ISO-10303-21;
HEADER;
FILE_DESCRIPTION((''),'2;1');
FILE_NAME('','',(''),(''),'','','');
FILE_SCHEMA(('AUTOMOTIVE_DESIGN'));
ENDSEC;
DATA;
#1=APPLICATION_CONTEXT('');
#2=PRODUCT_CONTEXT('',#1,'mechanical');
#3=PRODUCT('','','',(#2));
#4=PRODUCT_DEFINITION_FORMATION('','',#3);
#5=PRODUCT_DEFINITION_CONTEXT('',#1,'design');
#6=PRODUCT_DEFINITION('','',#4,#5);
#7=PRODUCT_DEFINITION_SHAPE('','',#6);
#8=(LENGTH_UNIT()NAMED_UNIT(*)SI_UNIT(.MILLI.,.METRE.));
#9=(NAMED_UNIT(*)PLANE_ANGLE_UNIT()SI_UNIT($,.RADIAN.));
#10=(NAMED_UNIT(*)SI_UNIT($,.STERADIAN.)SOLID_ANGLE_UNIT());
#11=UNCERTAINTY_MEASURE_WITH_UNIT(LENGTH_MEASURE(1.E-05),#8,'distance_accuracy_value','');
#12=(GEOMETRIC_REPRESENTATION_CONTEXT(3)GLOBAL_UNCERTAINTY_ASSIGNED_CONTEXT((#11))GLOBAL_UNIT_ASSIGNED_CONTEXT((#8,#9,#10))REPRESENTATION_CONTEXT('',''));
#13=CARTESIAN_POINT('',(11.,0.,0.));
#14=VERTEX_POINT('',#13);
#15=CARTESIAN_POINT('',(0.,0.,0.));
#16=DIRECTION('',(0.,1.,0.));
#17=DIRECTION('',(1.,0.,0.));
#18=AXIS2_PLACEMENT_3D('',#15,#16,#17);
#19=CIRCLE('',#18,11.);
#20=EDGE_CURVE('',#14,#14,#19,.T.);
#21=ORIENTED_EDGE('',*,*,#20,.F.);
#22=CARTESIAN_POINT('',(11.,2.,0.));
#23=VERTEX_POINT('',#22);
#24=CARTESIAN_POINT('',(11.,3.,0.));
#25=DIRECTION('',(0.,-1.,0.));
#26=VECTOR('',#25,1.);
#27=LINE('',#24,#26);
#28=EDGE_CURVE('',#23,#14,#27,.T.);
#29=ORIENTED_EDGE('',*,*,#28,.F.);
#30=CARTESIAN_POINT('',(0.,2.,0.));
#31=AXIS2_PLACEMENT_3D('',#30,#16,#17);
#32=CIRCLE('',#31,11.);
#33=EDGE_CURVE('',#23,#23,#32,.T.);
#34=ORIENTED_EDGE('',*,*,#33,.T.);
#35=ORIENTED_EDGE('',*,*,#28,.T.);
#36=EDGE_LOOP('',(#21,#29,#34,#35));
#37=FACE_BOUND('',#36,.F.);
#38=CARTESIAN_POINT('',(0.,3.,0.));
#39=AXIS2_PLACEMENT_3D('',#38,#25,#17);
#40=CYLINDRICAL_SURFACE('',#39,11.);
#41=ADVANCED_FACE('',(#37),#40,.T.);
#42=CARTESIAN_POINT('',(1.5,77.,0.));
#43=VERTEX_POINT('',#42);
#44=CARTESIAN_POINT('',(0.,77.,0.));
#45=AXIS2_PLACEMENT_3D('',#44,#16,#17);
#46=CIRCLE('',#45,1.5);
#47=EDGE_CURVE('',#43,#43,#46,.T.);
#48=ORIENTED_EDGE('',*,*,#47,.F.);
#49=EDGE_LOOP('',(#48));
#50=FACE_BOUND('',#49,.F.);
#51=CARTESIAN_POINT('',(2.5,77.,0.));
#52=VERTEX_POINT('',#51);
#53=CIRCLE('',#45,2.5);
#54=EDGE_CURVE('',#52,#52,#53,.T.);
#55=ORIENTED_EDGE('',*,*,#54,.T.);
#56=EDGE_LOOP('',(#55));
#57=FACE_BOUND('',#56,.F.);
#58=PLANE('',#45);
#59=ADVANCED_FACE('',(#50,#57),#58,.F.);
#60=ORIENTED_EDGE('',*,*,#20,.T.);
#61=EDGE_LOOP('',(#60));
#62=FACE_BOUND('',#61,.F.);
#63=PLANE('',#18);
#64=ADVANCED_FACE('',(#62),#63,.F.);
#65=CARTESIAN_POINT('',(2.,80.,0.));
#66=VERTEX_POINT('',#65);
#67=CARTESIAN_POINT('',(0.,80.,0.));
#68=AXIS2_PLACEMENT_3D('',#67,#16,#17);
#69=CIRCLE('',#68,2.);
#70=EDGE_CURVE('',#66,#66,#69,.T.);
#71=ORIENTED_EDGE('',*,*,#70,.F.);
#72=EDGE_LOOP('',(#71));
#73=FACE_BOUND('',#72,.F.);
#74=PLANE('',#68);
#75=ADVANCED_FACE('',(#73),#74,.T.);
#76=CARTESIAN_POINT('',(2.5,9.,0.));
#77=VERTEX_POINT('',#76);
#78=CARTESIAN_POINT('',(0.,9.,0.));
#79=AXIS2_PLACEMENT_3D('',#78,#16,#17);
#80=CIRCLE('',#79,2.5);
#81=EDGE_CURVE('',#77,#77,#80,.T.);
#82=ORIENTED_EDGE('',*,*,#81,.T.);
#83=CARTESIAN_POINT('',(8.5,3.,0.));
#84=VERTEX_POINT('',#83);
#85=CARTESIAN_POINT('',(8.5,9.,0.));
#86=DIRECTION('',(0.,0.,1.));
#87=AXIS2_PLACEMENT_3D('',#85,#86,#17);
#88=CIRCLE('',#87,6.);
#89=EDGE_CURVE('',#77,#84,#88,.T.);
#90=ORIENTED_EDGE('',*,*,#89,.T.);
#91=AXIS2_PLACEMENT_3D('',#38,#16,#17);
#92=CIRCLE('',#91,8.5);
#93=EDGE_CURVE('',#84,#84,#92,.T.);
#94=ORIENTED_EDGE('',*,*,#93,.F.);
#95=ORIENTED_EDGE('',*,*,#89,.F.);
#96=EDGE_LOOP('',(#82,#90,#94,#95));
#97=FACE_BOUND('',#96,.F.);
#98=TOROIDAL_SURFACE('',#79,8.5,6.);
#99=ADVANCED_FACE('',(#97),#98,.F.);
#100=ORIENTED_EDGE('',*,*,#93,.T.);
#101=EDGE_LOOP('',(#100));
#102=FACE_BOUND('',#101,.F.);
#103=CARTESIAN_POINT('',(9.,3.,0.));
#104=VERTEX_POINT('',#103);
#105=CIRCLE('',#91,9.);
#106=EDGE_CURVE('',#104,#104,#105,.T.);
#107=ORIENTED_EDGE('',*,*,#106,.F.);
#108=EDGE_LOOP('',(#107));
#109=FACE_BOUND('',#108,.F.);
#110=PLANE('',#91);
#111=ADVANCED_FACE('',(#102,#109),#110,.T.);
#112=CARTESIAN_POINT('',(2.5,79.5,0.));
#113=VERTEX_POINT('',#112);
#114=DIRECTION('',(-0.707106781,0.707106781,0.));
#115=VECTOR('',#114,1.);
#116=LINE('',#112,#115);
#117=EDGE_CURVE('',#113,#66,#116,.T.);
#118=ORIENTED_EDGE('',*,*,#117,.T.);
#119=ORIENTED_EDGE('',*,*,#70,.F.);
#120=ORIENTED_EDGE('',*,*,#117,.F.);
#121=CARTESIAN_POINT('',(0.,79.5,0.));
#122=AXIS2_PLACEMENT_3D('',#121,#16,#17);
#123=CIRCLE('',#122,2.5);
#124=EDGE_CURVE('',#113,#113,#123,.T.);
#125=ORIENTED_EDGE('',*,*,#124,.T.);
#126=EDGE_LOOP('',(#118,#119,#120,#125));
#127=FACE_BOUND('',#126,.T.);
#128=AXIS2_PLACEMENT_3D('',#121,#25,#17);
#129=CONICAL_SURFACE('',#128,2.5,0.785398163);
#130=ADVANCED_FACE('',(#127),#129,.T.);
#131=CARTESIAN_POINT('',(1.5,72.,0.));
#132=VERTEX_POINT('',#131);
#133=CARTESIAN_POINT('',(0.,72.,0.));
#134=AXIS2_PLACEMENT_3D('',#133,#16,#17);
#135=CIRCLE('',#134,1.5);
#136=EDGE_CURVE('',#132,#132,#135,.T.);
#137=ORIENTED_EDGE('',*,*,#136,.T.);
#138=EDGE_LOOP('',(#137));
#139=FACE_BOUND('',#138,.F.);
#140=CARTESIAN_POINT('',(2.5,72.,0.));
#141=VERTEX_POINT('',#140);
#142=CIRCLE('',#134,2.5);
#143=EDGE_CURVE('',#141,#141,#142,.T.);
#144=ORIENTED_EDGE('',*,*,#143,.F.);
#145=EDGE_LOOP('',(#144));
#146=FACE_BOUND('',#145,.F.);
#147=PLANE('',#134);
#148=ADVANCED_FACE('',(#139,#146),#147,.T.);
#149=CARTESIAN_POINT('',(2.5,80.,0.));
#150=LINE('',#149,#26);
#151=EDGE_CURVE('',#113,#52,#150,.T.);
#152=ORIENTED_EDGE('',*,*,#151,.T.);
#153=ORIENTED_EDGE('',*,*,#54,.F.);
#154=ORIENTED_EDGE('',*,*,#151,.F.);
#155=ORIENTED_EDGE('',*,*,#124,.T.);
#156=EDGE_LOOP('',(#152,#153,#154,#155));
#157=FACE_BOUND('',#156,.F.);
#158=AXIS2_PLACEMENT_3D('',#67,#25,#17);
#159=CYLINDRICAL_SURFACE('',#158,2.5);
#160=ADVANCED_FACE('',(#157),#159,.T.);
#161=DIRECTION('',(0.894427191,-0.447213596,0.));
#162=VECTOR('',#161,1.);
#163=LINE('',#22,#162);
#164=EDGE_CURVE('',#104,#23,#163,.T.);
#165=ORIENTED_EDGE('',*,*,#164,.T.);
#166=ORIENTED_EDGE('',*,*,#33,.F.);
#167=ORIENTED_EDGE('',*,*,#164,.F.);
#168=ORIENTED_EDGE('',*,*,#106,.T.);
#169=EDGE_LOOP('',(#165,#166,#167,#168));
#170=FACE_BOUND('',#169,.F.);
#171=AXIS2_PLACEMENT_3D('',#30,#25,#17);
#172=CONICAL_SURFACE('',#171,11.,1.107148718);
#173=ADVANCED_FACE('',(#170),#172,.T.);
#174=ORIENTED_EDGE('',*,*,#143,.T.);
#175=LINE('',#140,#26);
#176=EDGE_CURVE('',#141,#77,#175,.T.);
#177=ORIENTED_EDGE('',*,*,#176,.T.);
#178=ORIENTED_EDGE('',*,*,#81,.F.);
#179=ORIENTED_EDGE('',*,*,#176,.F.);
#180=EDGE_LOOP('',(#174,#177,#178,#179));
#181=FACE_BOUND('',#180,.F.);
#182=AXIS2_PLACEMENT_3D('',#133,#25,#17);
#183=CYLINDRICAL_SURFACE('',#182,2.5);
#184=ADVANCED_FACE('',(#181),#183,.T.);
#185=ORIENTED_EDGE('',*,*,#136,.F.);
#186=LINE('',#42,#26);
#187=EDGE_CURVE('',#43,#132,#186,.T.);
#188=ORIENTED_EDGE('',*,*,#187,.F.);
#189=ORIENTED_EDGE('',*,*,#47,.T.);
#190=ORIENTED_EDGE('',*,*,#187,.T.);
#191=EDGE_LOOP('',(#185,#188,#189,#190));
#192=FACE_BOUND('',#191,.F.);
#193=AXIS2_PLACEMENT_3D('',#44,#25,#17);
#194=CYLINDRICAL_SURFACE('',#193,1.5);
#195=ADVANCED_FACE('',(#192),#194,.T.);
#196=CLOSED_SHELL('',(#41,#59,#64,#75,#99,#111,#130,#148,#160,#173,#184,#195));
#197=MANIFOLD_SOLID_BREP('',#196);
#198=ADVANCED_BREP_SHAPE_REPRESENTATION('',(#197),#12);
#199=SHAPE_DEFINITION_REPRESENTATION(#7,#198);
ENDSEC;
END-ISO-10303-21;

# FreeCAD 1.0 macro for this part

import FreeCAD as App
import Part
import Sketcher
Q = App.Units.Quantity


def edges_at(feature, points):
    """Names of the edges that pass closest to the given points."""
    edges = feature.Shape.Edges
    near = lambda p: min(range(len(edges)), key=lambda i: edges[i].distToShape(Part.Vertex(*p))[0])
    return sorted({f"Edge{near(p) + 1}" for p in points})

doc = App.newDocument("Part")
body = doc.addObject("PartDesign::Body", "Body")

# Sketch on XY plane
sketch1 = body.newObject("Sketcher::SketchObject", "Sketch")
sketch1.AttachmentSupport = (doc.getObject("XY_Plane"), [""])
sketch1.MapMode = "FlatFace"
sketch1.addGeometry([
    Part.LineSegment(App.Vector(0, 80, 0), App.Vector(0, 0, 0)),  # 0
    Part.LineSegment(App.Vector(0, 0, 0), App.Vector(11, 0, 0)),  # 1
    Part.LineSegment(App.Vector(11, 0, 0), App.Vector(11, 3, 0)),  # 2
    Part.LineSegment(App.Vector(11, 3, 0), App.Vector(2.5, 3, 0)),  # 3
    Part.LineSegment(App.Vector(2.5, 3, 0), App.Vector(2.5, 72, 0)),  # 4
    Part.LineSegment(App.Vector(2.5, 72, 0), App.Vector(1.5, 72, 0)),  # 5
    Part.LineSegment(App.Vector(1.5, 72, 0), App.Vector(1.5, 77, 0)),  # 6
    Part.LineSegment(App.Vector(1.5, 77, 0), App.Vector(2.5, 77, 0)),  # 7
    Part.LineSegment(App.Vector(2.5, 77, 0), App.Vector(2.5, 80, 0)),  # 8
    Part.LineSegment(App.Vector(2.5, 80, 0), App.Vector(0, 80, 0)),  # 9
], False)
sketch1.addConstraint([
    Sketcher.Constraint("Coincident", 0, 2, 1, 1),
    Sketcher.Constraint("Coincident", 1, 2, 2, 1),
    Sketcher.Constraint("Coincident", 2, 2, 3, 1),
    Sketcher.Constraint("Coincident", 3, 2, 4, 1),
    Sketcher.Constraint("Coincident", 4, 2, 5, 1),
    Sketcher.Constraint("Coincident", 5, 2, 6, 1),
    Sketcher.Constraint("Coincident", 6, 2, 7, 1),
    Sketcher.Constraint("Coincident", 7, 2, 8, 1),
    Sketcher.Constraint("Coincident", 8, 2, 9, 1),
    Sketcher.Constraint("Coincident", 9, 2, 0, 1),
    Sketcher.Constraint("Vertical", 0),
    Sketcher.Constraint("Horizontal", 1),
    Sketcher.Constraint("Vertical", 2),
    Sketcher.Constraint("Horizontal", 3),
    Sketcher.Constraint("Vertical", 4),
    Sketcher.Constraint("Horizontal", 5),
    Sketcher.Constraint("Vertical", 6),
    Sketcher.Constraint("Horizontal", 7),
    Sketcher.Constraint("Vertical", 8),
    Sketcher.Constraint("Horizontal", 9),
    Sketcher.Constraint("Coincident", 0, 2, -1, 1),
    Sketcher.Constraint("Vertical", 4, 2, 7, 2),
    Sketcher.Constraint("Equal", 2, 8),
    Sketcher.Constraint("DistanceX", 1, 1, 1, 2, Q("11 mm")),
    Sketcher.Constraint("DistanceX", 5, 2, 5, 1, Q("1 mm")),
    Sketcher.Constraint("DistanceY", 0, 2, 0, 1, Q("80 mm")),
    Sketcher.Constraint("DistanceY", 2, 1, 2, 2, Q("3 mm")),
    Sketcher.Constraint("DistanceY", 4, 1, 4, 2, Q("69 mm")),
    Sketcher.Constraint("DistanceX", 3, 2, 3, 1, Q("8.5 mm")),
])
revolution = body.newObject("PartDesign::Revolution", "Revolution")
revolution.Profile = sketch1
revolution.ReferenceAxis = (sketch1, ["V_Axis"])
revolution.Angle = 360
doc.recompute()

fillet = body.newObject("PartDesign::Fillet", "Fillet")
fillet.Base = (revolution, edges_at(revolution, [(-2.5, 3, 0)]))
fillet.Radius = 6
doc.recompute()

chamfer = body.newObject("PartDesign::Chamfer", "Chamfer")
chamfer.Base = (fillet, edges_at(fillet, [(-2.5, 80, 0)]))
chamfer.Size = 0.5
doc.recompute()

chamfer2 = body.newObject("PartDesign::Chamfer", "Chamfer001")
chamfer2.Base = (chamfer, edges_at(chamfer, [(-11, 3, 0)]))
chamfer2.ChamferType = "Two distances"
chamfer2.Size = 2
chamfer2.Size2 = 1

doc.recompute()
